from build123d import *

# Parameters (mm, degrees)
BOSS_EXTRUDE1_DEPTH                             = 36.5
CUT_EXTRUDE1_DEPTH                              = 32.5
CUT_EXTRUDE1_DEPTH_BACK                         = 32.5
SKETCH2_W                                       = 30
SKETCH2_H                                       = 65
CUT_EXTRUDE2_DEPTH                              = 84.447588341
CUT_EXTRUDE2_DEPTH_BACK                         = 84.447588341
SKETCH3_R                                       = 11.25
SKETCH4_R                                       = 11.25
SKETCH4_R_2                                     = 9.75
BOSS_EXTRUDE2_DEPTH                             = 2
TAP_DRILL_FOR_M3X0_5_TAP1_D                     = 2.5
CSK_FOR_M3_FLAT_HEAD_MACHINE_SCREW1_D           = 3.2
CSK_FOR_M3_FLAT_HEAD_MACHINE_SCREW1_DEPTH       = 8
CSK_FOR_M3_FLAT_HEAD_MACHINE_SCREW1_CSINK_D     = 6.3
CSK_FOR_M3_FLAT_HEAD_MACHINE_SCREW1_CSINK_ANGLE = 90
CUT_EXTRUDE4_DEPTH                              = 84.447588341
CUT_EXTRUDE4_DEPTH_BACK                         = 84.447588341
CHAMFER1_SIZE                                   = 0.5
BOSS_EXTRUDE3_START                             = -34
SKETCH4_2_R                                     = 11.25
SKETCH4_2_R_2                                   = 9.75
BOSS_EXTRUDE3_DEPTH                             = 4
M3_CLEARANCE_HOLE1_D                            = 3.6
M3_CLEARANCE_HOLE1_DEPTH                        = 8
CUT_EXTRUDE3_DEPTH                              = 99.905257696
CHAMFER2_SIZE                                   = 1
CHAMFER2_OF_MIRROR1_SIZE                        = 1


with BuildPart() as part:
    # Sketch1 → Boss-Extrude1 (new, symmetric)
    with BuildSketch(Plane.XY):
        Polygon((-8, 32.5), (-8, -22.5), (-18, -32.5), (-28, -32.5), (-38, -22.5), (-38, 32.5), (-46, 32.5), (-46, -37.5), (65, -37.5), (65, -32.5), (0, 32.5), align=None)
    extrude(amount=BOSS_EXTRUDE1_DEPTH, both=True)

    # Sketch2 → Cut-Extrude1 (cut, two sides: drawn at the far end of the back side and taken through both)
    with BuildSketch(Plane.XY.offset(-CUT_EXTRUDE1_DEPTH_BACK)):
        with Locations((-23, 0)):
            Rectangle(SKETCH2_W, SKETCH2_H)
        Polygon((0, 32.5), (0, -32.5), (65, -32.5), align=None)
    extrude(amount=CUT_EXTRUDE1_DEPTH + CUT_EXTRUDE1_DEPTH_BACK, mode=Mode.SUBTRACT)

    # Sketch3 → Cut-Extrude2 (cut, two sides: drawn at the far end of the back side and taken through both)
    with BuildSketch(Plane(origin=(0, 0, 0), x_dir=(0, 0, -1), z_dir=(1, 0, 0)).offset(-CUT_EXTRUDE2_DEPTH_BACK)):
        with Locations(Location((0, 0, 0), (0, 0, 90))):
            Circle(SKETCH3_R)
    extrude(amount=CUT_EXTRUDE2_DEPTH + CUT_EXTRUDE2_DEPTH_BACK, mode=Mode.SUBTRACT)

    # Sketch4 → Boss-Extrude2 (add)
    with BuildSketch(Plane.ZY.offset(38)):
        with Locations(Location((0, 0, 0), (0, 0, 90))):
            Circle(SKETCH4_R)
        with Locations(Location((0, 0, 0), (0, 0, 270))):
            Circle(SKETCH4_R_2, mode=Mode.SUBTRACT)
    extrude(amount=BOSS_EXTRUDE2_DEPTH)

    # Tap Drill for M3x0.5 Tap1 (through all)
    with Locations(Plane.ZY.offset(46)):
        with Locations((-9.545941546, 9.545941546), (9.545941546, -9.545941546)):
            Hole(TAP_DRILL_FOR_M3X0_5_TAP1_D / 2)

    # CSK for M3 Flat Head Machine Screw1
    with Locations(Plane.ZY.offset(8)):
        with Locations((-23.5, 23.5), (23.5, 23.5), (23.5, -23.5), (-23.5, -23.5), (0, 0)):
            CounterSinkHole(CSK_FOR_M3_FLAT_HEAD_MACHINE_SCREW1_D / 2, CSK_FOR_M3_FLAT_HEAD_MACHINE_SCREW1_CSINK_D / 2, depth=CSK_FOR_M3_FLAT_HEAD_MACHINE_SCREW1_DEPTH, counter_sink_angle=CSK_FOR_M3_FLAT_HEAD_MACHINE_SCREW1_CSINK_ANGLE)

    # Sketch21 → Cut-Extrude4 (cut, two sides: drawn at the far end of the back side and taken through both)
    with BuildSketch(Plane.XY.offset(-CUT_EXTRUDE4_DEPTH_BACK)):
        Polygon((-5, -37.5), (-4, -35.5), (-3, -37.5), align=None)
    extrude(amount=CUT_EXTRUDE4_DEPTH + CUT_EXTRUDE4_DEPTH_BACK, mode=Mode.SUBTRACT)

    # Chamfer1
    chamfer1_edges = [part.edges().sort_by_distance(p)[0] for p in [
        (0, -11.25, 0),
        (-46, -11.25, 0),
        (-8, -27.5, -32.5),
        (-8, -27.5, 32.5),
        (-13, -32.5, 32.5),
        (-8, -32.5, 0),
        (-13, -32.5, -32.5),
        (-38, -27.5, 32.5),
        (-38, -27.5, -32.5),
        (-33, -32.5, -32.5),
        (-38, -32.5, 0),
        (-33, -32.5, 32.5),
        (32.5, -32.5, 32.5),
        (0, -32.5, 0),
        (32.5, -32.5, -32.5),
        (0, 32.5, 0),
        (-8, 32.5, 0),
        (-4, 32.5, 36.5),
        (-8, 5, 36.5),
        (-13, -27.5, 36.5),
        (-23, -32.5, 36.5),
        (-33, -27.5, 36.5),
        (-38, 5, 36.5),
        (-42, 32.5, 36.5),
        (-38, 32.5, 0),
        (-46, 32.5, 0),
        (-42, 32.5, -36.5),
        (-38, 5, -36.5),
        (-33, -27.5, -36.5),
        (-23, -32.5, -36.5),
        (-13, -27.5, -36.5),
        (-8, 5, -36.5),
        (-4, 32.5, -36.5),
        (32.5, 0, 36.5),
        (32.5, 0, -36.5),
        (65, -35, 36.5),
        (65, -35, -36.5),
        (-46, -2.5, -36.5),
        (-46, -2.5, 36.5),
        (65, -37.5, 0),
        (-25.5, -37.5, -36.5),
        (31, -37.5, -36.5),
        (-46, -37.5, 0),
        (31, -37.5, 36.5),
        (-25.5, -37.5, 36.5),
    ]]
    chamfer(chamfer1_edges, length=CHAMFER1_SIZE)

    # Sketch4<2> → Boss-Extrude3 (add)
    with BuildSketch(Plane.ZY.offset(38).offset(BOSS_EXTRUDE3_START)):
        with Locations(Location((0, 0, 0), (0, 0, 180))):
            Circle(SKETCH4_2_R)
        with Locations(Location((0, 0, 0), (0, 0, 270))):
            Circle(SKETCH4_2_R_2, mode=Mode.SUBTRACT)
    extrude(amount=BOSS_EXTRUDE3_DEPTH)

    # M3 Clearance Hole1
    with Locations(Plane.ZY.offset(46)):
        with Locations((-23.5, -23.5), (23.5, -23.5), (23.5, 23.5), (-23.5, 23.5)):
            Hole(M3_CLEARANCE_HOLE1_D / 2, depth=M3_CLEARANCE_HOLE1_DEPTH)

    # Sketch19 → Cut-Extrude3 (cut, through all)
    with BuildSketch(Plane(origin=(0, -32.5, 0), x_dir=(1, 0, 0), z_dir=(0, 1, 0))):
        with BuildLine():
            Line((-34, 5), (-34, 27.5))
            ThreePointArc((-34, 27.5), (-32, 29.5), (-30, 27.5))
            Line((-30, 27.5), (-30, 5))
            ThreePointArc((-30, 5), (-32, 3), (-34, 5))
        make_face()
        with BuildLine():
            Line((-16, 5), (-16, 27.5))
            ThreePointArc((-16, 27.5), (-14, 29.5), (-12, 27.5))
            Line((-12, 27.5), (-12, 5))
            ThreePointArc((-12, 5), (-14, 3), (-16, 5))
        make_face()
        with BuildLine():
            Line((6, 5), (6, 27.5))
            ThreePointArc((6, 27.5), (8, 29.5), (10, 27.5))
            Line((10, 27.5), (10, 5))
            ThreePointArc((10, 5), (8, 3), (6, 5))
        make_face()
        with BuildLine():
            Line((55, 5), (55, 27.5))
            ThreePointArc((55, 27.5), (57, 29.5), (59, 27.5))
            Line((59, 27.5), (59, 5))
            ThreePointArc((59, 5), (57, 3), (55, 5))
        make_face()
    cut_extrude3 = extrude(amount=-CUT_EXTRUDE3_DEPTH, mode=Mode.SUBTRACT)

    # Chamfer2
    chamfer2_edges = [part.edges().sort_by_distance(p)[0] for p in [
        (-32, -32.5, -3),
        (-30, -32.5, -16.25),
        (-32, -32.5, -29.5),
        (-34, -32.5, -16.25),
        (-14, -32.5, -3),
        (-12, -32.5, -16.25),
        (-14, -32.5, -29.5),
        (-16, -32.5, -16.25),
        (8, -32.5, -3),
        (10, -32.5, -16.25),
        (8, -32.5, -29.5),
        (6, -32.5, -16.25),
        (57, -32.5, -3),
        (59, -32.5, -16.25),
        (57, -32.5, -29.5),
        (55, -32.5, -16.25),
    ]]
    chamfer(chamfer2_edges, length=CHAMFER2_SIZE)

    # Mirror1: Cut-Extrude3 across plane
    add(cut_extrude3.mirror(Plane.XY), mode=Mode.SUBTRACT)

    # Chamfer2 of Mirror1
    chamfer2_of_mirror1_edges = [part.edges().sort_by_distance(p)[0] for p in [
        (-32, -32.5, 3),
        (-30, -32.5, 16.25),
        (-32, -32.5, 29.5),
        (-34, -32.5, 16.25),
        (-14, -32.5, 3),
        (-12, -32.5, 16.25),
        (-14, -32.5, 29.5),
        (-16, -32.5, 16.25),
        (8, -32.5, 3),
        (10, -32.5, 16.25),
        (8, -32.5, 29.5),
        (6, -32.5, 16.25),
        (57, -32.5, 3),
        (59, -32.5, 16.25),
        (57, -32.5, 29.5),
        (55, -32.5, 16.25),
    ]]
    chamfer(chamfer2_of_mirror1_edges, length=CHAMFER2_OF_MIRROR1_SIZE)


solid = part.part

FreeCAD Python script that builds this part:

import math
import FreeCAD as App
import Part
import Sketcher

V = App.Vector
Q = App.Units.Quantity


def edges_at(feature, points):
    """Names of the edges that pass closest to the given points."""
    edges = feature.Shape.Edges
    near = lambda p: min(range(len(edges)), key=lambda i: edges[i].distToShape(Part.Vertex(*p))[0])
    return sorted({f"Edge{near(p) + 1}" for p in points})


def add_polygon(sketch, points):
    """Adds a closed chain of lines whose ends are joined by coincident constraints."""
    first, n = sketch.GeometryCount, len(points)
    for a, b in zip(points, points[1:] + points[:1]):
        sketch.addGeometry(Part.LineSegment(App.Vector(*a, 0), App.Vector(*b, 0)), False)
    for i in range(n):
        sketch.addConstraint(Sketcher.Constraint("Coincident", first + i, 2, first + (i + 1) % n, 1))

doc = App.newDocument("Part")
body = doc.addObject("PartDesign::Body", "Body")

sketch1 = body.newObject("Sketcher::SketchObject", "Sketch")
sketch1.AttachmentSupport = (doc.getObject("XY_Plane"), [""])
sketch1.MapMode = "FlatFace"
add_polygon(sketch1, [(-8, 32.5), (-8, -22.5), (-18, -32.5), (-28, -32.5), (-38, -22.5), (-38, 32.5), (-46, 32.5), (-46, -37.5), (65, -37.5), (65, -32.5), (0, 32.5)])
sketch1.addConstraint([
    Sketcher.Constraint("Vertical", 0),
    Sketcher.Constraint("Horizontal", 2),
    Sketcher.Constraint("Vertical", 4),
    Sketcher.Constraint("Horizontal", 5),
    Sketcher.Constraint("Vertical", 6),
    Sketcher.Constraint("Horizontal", 7),
    Sketcher.Constraint("Vertical", 8),
    Sketcher.Constraint("Horizontal", 10),
    Sketcher.Constraint("PointOnObject", 9, 2, -2),
    Sketcher.Constraint("Perpendicular", 1, 3),
    Sketcher.Constraint("Parallel", 3, 9),
    Sketcher.Constraint("Horizontal", 0, 2, 3, 2),
    Sketcher.Constraint("Horizontal", 2, 2, 8, 2),
    Sketcher.Constraint("Horizontal", 5, 2, 9, 2),
    Sketcher.Constraint("Equal", 5, 10),
    Sketcher.Constraint("Equal", 1, 3),
    Sketcher.Constraint("DistanceX", 2, 2, 2, 1, Q("10 mm")),
    Sketcher.Constraint("DistanceX", 5, 2, 5, 1, Q("8 mm")),
    Sketcher.Constraint("DistanceX", 7, 1, 7, 2, Q("111 mm")),
    Sketcher.Constraint("DistanceY", 0, 2, 0, 1, Q("55 mm")),
    Sketcher.Constraint("DistanceY", 6, 2, 6, 1, Q("70 mm")),
    Sketcher.Constraint("DistanceY", 0, 2, -1, 1, Q("22.5 mm")),
])
pad1 = body.newObject("PartDesign::Pad", "Pad")
pad1.Profile = sketch1
pad1.Length = 73
pad1.Midplane = True

sketch2 = body.newObject("Sketcher::SketchObject", "Sketch001")
sketch2.AttachmentSupport = (doc.getObject("XY_Plane"), [""])
sketch2.MapMode = "FlatFace"
add_polygon(sketch2, [(-38, 32.5), (-38, -32.5), (-8, -32.5), (-8, 32.5)])
add_polygon(sketch2, [(0, 32.5), (0, -32.5), (65, -32.5)])
sketch2.addConstraint([
    Sketcher.Constraint("Vertical", 0),
    Sketcher.Constraint("Horizontal", 1),
    Sketcher.Constraint("Vertical", 2),
    Sketcher.Constraint("Horizontal", 3),
    Sketcher.Constraint("Vertical", 4),
    Sketcher.Constraint("Horizontal", 5),
    Sketcher.Constraint("Symmetric", 4, 2, 6, 2, -1, 1),
    Sketcher.Constraint("Horizontal", 1, 2, 4, 2),
    Sketcher.Constraint("Horizontal", 3, 2, 6, 2),
    Sketcher.Constraint("Equal", 5, 0),
    Sketcher.Constraint("DistanceX", 1, 1, 1, 2, Q("30 mm")),
    Sketcher.Constraint("DistanceX", 5, 1, 5, 2, Q("65 mm")),
    Sketcher.Constraint("DistanceX", 0, 2, -1, 1, Q("38 mm")),
])
pocket1 = body.newObject("PartDesign::Pocket", "Pocket")
pocket1.Profile = sketch2
pocket1.Type = "TwoLengths"
pocket1.Length = 32.5
pocket1.Length2 = 32.5
pocket1.Reversed = True

sketch3 = body.newObject("Sketcher::SketchObject", "Sketch002")
sketch3.AttachmentSupport = (doc.getObject("YZ_Plane"), [""])
sketch3.MapMode = "FlatFace"
sketch3.addGeometry(Part.Circle(V(0, 0, 0), V(0, 0, 1), 11.25), False)
sketch3.addConstraint([
    Sketcher.Constraint("Coincident", 0, 3, -1, 1),
    Sketcher.Constraint("Diameter", 0, Q("22.5 mm")),
])
pocket2 = body.newObject("PartDesign::Pocket", "Pocket001")
pocket2.Profile = sketch3
pocket2.Type = "ThroughAll"
pocket2.Midplane = True

sketch4 = body.newObject("Sketcher::SketchObject", "Sketch003")
sketch4.AttachmentSupport = (doc.getObject("YZ_Plane"), [""])
sketch4.MapMode = "FlatFace"
sketch4.AttachmentOffset = App.Placement(V(0, 0, -38), App.Rotation())
sketch4.addGeometry([
    Part.Circle(V(0, 0, 0), V(0, 0, 1), 11.25),
    Part.Circle(V(0, 0, 0), V(0, 0, 1), 9.75),
], False)
sketch4.addConstraint([
    Sketcher.Constraint("Coincident", 0, 3, -1, 1),
    Sketcher.Constraint("Coincident", 1, 3, -1, 1),
    Sketcher.Constraint("Diameter", 0, Q("22.5 mm")),
    Sketcher.Constraint("Diameter", 1, Q("19.5 mm")),
])
pad2 = body.newObject("PartDesign::Pad", "Pad001")
pad2.Profile = sketch4
pad2.Length = 2
pad2.Reversed = True

sketch5 = body.newObject("Sketcher::SketchObject", "Sketch004")
sketch5.AttachmentSupport = (doc.getObject("YZ_Plane"), [""])
sketch5.MapMode = "FlatFace"
sketch5.AttachmentOffset = App.Placement(V(0, 0, -46), App.Rotation())
sketch5.addGeometry([
    Part.Circle(V(9.545942, -9.545942, 0), V(0, 0, 1), 1.25),
    Part.Circle(V(-9.545942, 9.545942, 0), V(0, 0, 1), 1.25),
], False)
sketch5.addConstraint([
    Sketcher.Constraint("Equal", 0, 1),
    Sketcher.Constraint("Symmetric", 0, 3, 1, 3, -1, 1),
    Sketcher.Constraint("Diameter", 0, Q("2.5 mm")),
    Sketcher.Constraint("DistanceX", -1, 1, 0, 3, Q("9.545942 mm")),
    Sketcher.Constraint("DistanceY", 0, 3, -1, 1, Q("9.545942 mm")),
])
doc.recompute()
hole = body.newObject("PartDesign::Hole", "Hole")
hole.Profile = sketch5
hole.ThreadType = "None"
hole.Diameter = 2.5
hole.DepthType = "ThroughAll"
hole.Reversed = True

sketch6 = body.newObject("Sketcher::SketchObject", "Sketch005")
sketch6.AttachmentSupport = (doc.getObject("YZ_Plane"), [""])
sketch6.MapMode = "FlatFace"
sketch6.AttachmentOffset = App.Placement(V(0, 0, -8), App.Rotation())
sketch6.addGeometry([
    Part.Circle(V(23.5, -23.5, 0), V(0, 0, 1), 1.6),
    Part.Circle(V(23.5, 23.5, 0), V(0, 0, 1), 1.6),
    Part.Circle(V(-23.5, 23.5, 0), V(0, 0, 1), 1.6),
    Part.Circle(V(-23.5, -23.5, 0), V(0, 0, 1), 1.6),
    Part.Circle(V(0, 0, 0), V(0, 0, 1), 1.6),
], False)
sketch6.addConstraint([
    Sketcher.Constraint("Coincident", 4, 3, -1, 1),
    Sketcher.Constraint("Equal", 0, 1),
    Sketcher.Constraint("Equal", 1, 2),
    Sketcher.Constraint("Equal", 2, 3),
    Sketcher.Constraint("Equal", 3, 4),
    Sketcher.Constraint("Symmetric", 0, 3, 2, 3, -1, 1),
    Sketcher.Constraint("Symmetric", 1, 3, 3, 3, -1, 1),
    Sketcher.Constraint("Symmetric", 1, 3, 2, 3, -2),
    Sketcher.Constraint("Diameter", 0, Q("3.2 mm")),
    Sketcher.Constraint("DistanceY", 0, 3, 1, 3, Q("47 mm")),
    Sketcher.Constraint("DistanceX", 2, 3, 1, 3, Q("47 mm")),
])
doc.recompute()
hole2 = body.newObject("PartDesign::Hole", "Hole001")
hole2.Profile = sketch6
hole2.ThreadType = "None"
hole2.Diameter = 3.2
hole2.DepthType = "Dimension"
hole2.Depth = 8
hole2.DrillPoint = "Flat"
hole2.HoleCutType = "Countersink"
hole2.HoleCutDiameter = 6.3
hole2.HoleCutCountersinkAngle = 90
hole2.Reversed = True

sketch7 = body.newObject("Sketcher::SketchObject", "Sketch006")
sketch7.AttachmentSupport = (doc.getObject("XY_Plane"), [""])
sketch7.MapMode = "FlatFace"
add_polygon(sketch7, [(-4, -35.5), (-5, -37.5), (-3, -37.5)])
sketch7.addConstraint([
    Sketcher.Constraint("Horizontal", 1),
    Sketcher.Constraint("Equal", 0, 2),
    Sketcher.Constraint("DistanceX", 1, 1, 1, 2, Q("2 mm")),
    Sketcher.Constraint("DistanceX", 0, 2, -1, 1, Q("5 mm")),
    Sketcher.Constraint("DistanceY", 0, 2, 2, 2, Q("2 mm")),
    Sketcher.Constraint("DistanceY", 0, 2, -1, 1, Q("37.5 mm")),
])
pocket3 = body.newObject("PartDesign::Pocket", "Pocket002")
pocket3.Profile = sketch7
pocket3.Type = "ThroughAll"
pocket3.Midplane = True
doc.recompute()

chamfer = body.newObject("PartDesign::Chamfer", "Chamfer")
chamfer.Base = (pocket3, edges_at(pocket3, [
    (0, -11.25, 0),
    (-46, -11.25, 0),
    (-8, -27.5, -32.5),
    (-8, -27.5, 32.5),
    (-13, -32.5, 32.5),
    (-8, -32.5, 0),
    (-13, -32.5, -32.5),
    (-38, -27.5, 32.5),
    (-38, -27.5, -32.5),
    (-33, -32.5, -32.5),
    (-38, -32.5, 0),
    (-33, -32.5, 32.5),
    (32.5, -32.5, 32.5),
    (0, -32.5, 0),
    (32.5, -32.5, -32.5),
    (0, 32.5, 0),
    (-8, 32.5, 0),
    (-4, 32.5, 36.5),
    (-8, 5, 36.5),
    (-13, -27.5, 36.5),
    (-23, -32.5, 36.5),
    (-33, -27.5, 36.5),
    (-38, 5, 36.5),
    (-42, 32.5, 36.5),
    (-38, 32.5, 0),
    (-46, 32.5, 0),
    (-42, 32.5, -36.5),
    (-38, 5, -36.5),
    (-33, -27.5, -36.5),
    (-23, -32.5, -36.5),
    (-13, -27.5, -36.5),
    (-8, 5, -36.5),
    (-4, 32.5, -36.5),
    (32.5, 0, 36.5),
    (32.5, 0, -36.5),
    (65, -35, 36.5),
    (65, -35, -36.5),
    (-46, -2.5, -36.5),
    (-46, -2.5, 36.5),
    (65, -37.5, 0),
    (-25.5, -37.5, -36.5),
    (31, -37.5, -36.5),
    (-46, -37.5, 0),
    (31, -37.5, 36.5),
    (-25.5, -37.5, 36.5),
]))
chamfer.Size = 0.5

sketch8 = body.newObject("Sketcher::SketchObject", "Sketch007")
sketch8.AttachmentSupport = (doc.getObject("YZ_Plane"), [""])
sketch8.MapMode = "FlatFace"
sketch8.AttachmentOffset = App.Placement(V(0, 0, -4), App.Rotation())
sketch8.addGeometry([
    Part.Circle(V(0, 0, 0), V(0, 0, 1), 11.25),
    Part.Circle(V(0, 0, 0), V(0, 0, 1), 9.75),
], False)
sketch8.addConstraint([
    Sketcher.Constraint("Coincident", 0, 3, -1, 1),
    Sketcher.Constraint("Coincident", 1, 3, -1, 1),
    Sketcher.Constraint("Diameter", 0, Q("22.5 mm")),
    Sketcher.Constraint("Diameter", 1, Q("19.5 mm")),
])
pad3 = body.newObject("PartDesign::Pad", "Pad002")
pad3.Profile = sketch8
pad3.Length = 4
pad3.Reversed = True

sketch9 = body.newObject("Sketcher::SketchObject", "Sketch008")
sketch9.AttachmentSupport = (doc.getObject("YZ_Plane"), [""])
sketch9.MapMode = "FlatFace"
sketch9.AttachmentOffset = App.Placement(V(0, 0, -46), App.Rotation())
sketch9.addGeometry([
    Part.Circle(V(-23.5, -23.5, 0), V(0, 0, 1), 1.8),
    Part.Circle(V(-23.5, 23.5, 0), V(0, 0, 1), 1.8),
    Part.Circle(V(23.5, 23.5, 0), V(0, 0, 1), 1.8),
    Part.Circle(V(23.5, -23.5, 0), V(0, 0, 1), 1.8),
], False)
sketch9.addConstraint([
    Sketcher.Constraint("Equal", 0, 1),
    Sketcher.Constraint("Equal", 1, 2),
    Sketcher.Constraint("Equal", 2, 3),
    Sketcher.Constraint("Symmetric", 0, 3, 2, 3, -1, 1),
    Sketcher.Constraint("Symmetric", 1, 3, 3, 3, -1, 1),
    Sketcher.Constraint("Symmetric", 1, 3, 2, 3, -2),
    Sketcher.Constraint("Diameter", 0, Q("3.6 mm")),
    Sketcher.Constraint("DistanceY", 0, 3, 1, 3, Q("47 mm")),
    Sketcher.Constraint("DistanceX", 1, 3, 2, 3, Q("47 mm")),
])
doc.recompute()
hole3 = body.newObject("PartDesign::Hole", "Hole002")
hole3.Profile = sketch9
hole3.ThreadType = "None"
hole3.Diameter = 3.6
hole3.DepthType = "Dimension"
hole3.Depth = 8
hole3.DrillPoint = "Flat"
hole3.Reversed = True

sketch10 = body.newObject("Sketcher::SketchObject", "Sketch009")
sketch10.AttachmentSupport = (doc.getObject("XZ_Plane"), [""])
sketch10.MapMode = "FlatFace"
sketch10.AttachmentOffset = App.Placement(V(0, 0, 32.5), App.Rotation())
sketch10.addGeometry([
    Part.LineSegment(V(-34, -27.5, 0), V(-34, -5, 0)),
    Part.ArcOfCircle(Part.Circle(V(-32, -5, 0), V(0, 0, 1), 2), math.radians(0), math.radians(180)),
    Part.LineSegment(V(-30, -5, 0), V(-30, -27.5, 0)),
    Part.ArcOfCircle(Part.Circle(V(-32, -27.5, 0), V(0, 0, 1), 2), math.radians(180), math.radians(360)),
    Part.LineSegment(V(-16, -27.5, 0), V(-16, -5, 0)),
    Part.ArcOfCircle(Part.Circle(V(-14, -5, 0), V(0, 0, 1), 2), math.radians(0), math.radians(180)),
    Part.LineSegment(V(-12, -5, 0), V(-12, -27.5, 0)),
    Part.ArcOfCircle(Part.Circle(V(-14, -27.5, 0), V(0, 0, 1), 2), math.radians(180), math.radians(360)),
    Part.LineSegment(V(6, -27.5, 0), V(6, -5, 0)),
    Part.ArcOfCircle(Part.Circle(V(8, -5, 0), V(0, 0, 1), 2), math.radians(0), math.radians(180)),
    Part.LineSegment(V(10, -5, 0), V(10, -27.5, 0)),
    Part.ArcOfCircle(Part.Circle(V(8, -27.5, 0), V(0, 0, 1), 2), math.radians(180), math.radians(360)),
    Part.LineSegment(V(55, -27.5, 0), V(55, -5, 0)),
    Part.ArcOfCircle(Part.Circle(V(57, -5, 0), V(0, 0, 1), 2), math.radians(0), math.radians(180)),
    Part.LineSegment(V(59, -5, 0), V(59, -27.5, 0)),
    Part.ArcOfCircle(Part.Circle(V(57, -27.5, 0), V(0, 0, 1), 2), math.radians(180), math.radians(360)),
], False)
sketch10.addConstraint([
    Sketcher.Constraint("Tangent", 0, 2, 1, 2),
    Sketcher.Constraint("Tangent", 1, 1, 2, 1),
    Sketcher.Constraint("Tangent", 2, 2, 3, 2),
    Sketcher.Constraint("Tangent", 3, 1, 0, 1),
    Sketcher.Constraint("Tangent", 4, 2, 5, 2),
    Sketcher.Constraint("Tangent", 5, 1, 6, 1),
    Sketcher.Constraint("Tangent", 6, 2, 7, 2),
    Sketcher.Constraint("Tangent", 7, 1, 4, 1),
    Sketcher.Constraint("Tangent", 8, 2, 9, 2),
    Sketcher.Constraint("Tangent", 9, 1, 10, 1),
    Sketcher.Constraint("Tangent", 10, 2, 11, 2),
    Sketcher.Constraint("Tangent", 11, 1, 8, 1),
    Sketcher.Constraint("Tangent", 12, 2, 13, 2),
    Sketcher.Constraint("Tangent", 13, 1, 14, 1),
    Sketcher.Constraint("Tangent", 14, 2, 15, 2),
    Sketcher.Constraint("Tangent", 15, 1, 12, 1),
    Sketcher.Constraint("Vertical", 0),
    Sketcher.Constraint("Vertical", 2),
    Sketcher.Constraint("Vertical", 4),
    Sketcher.Constraint("Vertical", 6),
    Sketcher.Constraint("Vertical", 8),
    Sketcher.Constraint("Vertical", 10),
    Sketcher.Constraint("Vertical", 12),
    Sketcher.Constraint("Vertical", 14),
    Sketcher.Constraint("Equal", 3, 5),
    Sketcher.Constraint("Equal", 7, 9),
    Sketcher.Constraint("Equal", 11, 13),
    Sketcher.Constraint("Horizontal", 1, 3, 5, 3),
    Sketcher.Constraint("Horizontal", 3, 3, 7, 3),
    Sketcher.Constraint("Horizontal", 5, 3, 9, 3),
    Sketcher.Constraint("Horizontal", 7, 3, 11, 3),
    Sketcher.Constraint("Horizontal", 9, 3, 13, 3),
    Sketcher.Constraint("Horizontal", 11, 3, 15, 3),
    Sketcher.Constraint("Radius", 1, Q("2 mm")),
    Sketcher.Constraint("DistanceY", 0, 1, 0, 2, Q("22.5 mm")),
    Sketcher.Constraint("DistanceX", 1, 3, -1, 1, Q("32 mm")),
    Sketcher.Constraint("DistanceY", 1, 3, -1, 1, Q("5 mm")),
    Sketcher.Constraint("DistanceX", 5, 3, -1, 1, Q("14 mm")),
    Sketcher.Constraint("DistanceX", -1, 1, 9, 3, Q("8 mm")),
    Sketcher.Constraint("DistanceX", -1, 1, 13, 3, Q("57 mm")),
])
pocket4 = body.newObject("PartDesign::Pocket", "Pocket003")
pocket4.Profile = sketch10
pocket4.Type = "ThroughAll"
pocket4.Reversed = True
doc.recompute()

chamfer2 = body.newObject("PartDesign::Chamfer", "Chamfer001")
chamfer2.Base = (pocket4, edges_at(pocket4, [
    (-32, -32.5, -3),
    (-30, -32.5, -16.25),
    (-32, -32.5, -29.5),
    (-34, -32.5, -16.25),
    (-14, -32.5, -3),
    (-12, -32.5, -16.25),
    (-14, -32.5, -29.5),
    (-16, -32.5, -16.25),
    (8, -32.5, -3),
    (10, -32.5, -16.25),
    (8, -32.5, -29.5),
    (6, -32.5, -16.25),
    (57, -32.5, -3),
    (59, -32.5, -16.25),
    (57, -32.5, -29.5),
    (55, -32.5, -16.25),
]))
chamfer2.Size = 1
doc.recompute()

mirrored = body.newObject("PartDesign::Mirrored", "Mirrored")
mirrored.Originals = [pocket4]
mirrored.MirrorPlane = (doc.getObject("XY_Plane"), [""])
body.Tip = mirrored
doc.recompute()

chamfer3 = body.newObject("PartDesign::Chamfer", "Chamfer002")
chamfer3.Base = (mirrored, edges_at(mirrored, [
    (-32, -32.5, 3),
    (-30, -32.5, 16.25),
    (-32, -32.5, 29.5),
    (-34, -32.5, 16.25),
    (-14, -32.5, 3),
    (-12, -32.5, 16.25),
    (-14, -32.5, 29.5),
    (-16, -32.5, 16.25),
    (8, -32.5, 3),
    (10, -32.5, 16.25),
    (8, -32.5, 29.5),
    (6, -32.5, 16.25),
    (57, -32.5, 3),
    (59, -32.5, 16.25),
    (57, -32.5, 29.5),
    (55, -32.5, 16.25),
]))
chamfer3.Size = 1

doc.recompute()
